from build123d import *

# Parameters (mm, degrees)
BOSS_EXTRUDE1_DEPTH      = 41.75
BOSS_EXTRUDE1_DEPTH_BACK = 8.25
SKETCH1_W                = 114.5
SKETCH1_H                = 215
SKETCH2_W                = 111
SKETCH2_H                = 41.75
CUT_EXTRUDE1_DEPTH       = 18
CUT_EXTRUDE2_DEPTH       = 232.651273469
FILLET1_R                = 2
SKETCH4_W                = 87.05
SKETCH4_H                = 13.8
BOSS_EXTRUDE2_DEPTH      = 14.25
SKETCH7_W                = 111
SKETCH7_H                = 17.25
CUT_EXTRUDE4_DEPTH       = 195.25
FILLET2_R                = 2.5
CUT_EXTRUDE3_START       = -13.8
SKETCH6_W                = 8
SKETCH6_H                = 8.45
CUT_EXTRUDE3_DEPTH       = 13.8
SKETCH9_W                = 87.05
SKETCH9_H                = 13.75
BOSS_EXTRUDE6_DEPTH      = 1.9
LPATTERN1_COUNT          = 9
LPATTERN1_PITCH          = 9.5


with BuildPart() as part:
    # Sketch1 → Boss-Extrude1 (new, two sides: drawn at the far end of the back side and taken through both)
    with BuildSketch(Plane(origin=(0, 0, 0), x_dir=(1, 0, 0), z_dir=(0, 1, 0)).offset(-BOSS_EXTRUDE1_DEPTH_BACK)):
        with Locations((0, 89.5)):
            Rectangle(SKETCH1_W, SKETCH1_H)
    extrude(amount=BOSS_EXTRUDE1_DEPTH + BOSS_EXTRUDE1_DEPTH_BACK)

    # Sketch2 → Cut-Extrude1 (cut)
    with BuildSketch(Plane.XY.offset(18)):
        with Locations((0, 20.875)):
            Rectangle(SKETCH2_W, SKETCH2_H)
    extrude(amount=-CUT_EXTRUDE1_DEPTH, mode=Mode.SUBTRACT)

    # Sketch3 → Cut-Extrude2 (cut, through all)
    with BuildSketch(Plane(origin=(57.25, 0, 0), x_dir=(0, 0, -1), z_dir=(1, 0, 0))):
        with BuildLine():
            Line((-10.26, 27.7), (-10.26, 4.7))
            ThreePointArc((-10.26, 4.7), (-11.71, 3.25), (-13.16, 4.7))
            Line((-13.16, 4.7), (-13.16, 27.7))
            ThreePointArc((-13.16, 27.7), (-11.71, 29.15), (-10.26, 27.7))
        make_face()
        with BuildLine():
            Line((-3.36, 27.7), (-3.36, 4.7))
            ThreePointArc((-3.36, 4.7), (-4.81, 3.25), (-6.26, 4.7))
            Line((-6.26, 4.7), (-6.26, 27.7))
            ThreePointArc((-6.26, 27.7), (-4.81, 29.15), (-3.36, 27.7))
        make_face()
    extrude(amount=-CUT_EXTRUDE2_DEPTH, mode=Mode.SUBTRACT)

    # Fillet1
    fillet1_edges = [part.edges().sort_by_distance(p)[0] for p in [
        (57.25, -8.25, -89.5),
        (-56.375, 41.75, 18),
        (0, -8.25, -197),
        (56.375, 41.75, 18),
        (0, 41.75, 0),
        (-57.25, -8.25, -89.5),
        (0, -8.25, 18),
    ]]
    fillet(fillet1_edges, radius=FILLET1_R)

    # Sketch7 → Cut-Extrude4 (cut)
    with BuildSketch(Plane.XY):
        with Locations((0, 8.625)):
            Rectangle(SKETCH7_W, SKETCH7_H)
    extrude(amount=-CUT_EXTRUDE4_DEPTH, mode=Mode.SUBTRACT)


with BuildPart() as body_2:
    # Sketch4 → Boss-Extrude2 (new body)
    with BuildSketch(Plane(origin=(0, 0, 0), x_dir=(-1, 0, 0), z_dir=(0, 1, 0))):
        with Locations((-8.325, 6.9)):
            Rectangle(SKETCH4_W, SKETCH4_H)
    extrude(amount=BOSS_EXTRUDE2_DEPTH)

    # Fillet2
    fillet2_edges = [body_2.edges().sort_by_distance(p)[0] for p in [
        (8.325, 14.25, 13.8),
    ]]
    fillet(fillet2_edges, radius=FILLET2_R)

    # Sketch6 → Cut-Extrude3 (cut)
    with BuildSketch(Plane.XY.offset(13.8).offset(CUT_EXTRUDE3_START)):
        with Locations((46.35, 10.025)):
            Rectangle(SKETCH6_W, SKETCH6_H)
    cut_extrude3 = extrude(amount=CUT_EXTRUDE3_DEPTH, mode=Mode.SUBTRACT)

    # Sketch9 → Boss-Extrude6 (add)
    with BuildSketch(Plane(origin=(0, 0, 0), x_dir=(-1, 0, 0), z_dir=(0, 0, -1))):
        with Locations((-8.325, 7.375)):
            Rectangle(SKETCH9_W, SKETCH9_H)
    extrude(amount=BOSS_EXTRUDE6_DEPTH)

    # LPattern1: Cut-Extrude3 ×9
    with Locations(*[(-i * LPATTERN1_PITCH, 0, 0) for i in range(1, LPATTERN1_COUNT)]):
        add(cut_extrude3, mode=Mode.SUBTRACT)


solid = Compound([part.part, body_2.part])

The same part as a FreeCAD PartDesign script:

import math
import FreeCAD as App
import Part
import Sketcher


def edges_at(feature, points):
    """Names of the edges that pass closest to the given points."""
    edges = feature.Shape.Edges
    near = lambda p: min(range(len(edges)), key=lambda i: edges[i].distToShape(Part.Vertex(*p))[0])
    return sorted({f"Edge{near(p) + 1}" for p in points})

doc = App.newDocument("Part")
body = doc.addObject("PartDesign::Body", "Body")

sketch1 = doc.addObject("Sketcher::SketchObject", "Sketch")
body.addObject(sketch1)
sketch1.AttachmentSupport = (doc.XZ_Plane, [""])
sketch1.MapMode = "FlatFace"
sketch1.addGeometry([
    Part.LineSegment(App.Vector(-57, -197, 0), App.Vector(-57, 18, 0)),
    Part.LineSegment(App.Vector(-57, 18, 0), App.Vector(57, 18, 0)),
    Part.LineSegment(App.Vector(57, 18, 0), App.Vector(57, -197, 0)),
    Part.LineSegment(App.Vector(57, -197, 0), App.Vector(-57, -197, 0)),
], False)
sketch1.addConstraint([
    Sketcher.Constraint("Coincident", 0, 2, 1, 1),
    Sketcher.Constraint("Coincident", 1, 2, 2, 1),
    Sketcher.Constraint("Coincident", 2, 2, 3, 1),
    Sketcher.Constraint("Coincident", 3, 2, 0, 1),
    Sketcher.Constraint("Vertical", 0),
    Sketcher.Constraint("Horizontal", 1),
    Sketcher.Constraint("Vertical", 2),
    Sketcher.Constraint("Horizontal", 3),
    Sketcher.Constraint("DistanceY", 0, 1, 0, 2, 215.0),
    Sketcher.Constraint("DistanceX", 1, 1, 1, 2, 114.5),
    Sketcher.Constraint("DistanceY", -1, 1, 0, 2, 18.0),
    Sketcher.Constraint("DistanceX", 0, 2, -1, 1, 57.25),
])
pad1 = doc.addObject("PartDesign::Pad", "Pad")
body.addObject(pad1)
pad1.Profile = sketch1
pad1.Type = "TwoLengths"
pad1.Length = 41.75
pad1.Length2 = 8.25
pad1.Reversed = True

sketch2 = doc.addObject("Sketcher::SketchObject", "Sketch001")
body.addObject(sketch2)
sketch2.AttachmentSupport = (doc.XY_Plane, [""])
sketch2.MapMode = "FlatFace"
sketch2.AttachmentOffset = App.Placement(App.Vector(0, 0, 18), App.Rotation())
sketch2.addGeometry([
    Part.LineSegment(App.Vector(-56, 42, 0), App.Vector(-56, 0, 0)),
    Part.LineSegment(App.Vector(-56, 0, 0), App.Vector(56, 0, 0)),
    Part.LineSegment(App.Vector(56, 0, 0), App.Vector(56, 42, 0)),
    Part.LineSegment(App.Vector(56, 42, 0), App.Vector(-56, 42, 0)),
], False)
sketch2.addConstraint([
    Sketcher.Constraint("Coincident", 0, 2, 1, 1),
    Sketcher.Constraint("Coincident", 1, 2, 2, 1),
    Sketcher.Constraint("Coincident", 2, 2, 3, 1),
    Sketcher.Constraint("Coincident", 3, 2, 0, 1),
    Sketcher.Constraint("Vertical", 0),
    Sketcher.Constraint("Horizontal", 1),
    Sketcher.Constraint("Vertical", 2),
    Sketcher.Constraint("Horizontal", 3),
    Sketcher.Constraint("Symmetric", 0, 2, 1, 2, -1, 1),
    Sketcher.Constraint("DistanceX", 1, 1, 1, 2, 111.0),
    Sketcher.Constraint("DistanceY", 0, 2, 0, 1, 41.75),
])
pocket1 = doc.addObject("PartDesign::Pocket", "Pocket")
body.addObject(pocket1)
pocket1.Profile = sketch2
pocket1.Length = 18

sketch3 = doc.addObject("Sketcher::SketchObject", "Sketch002")
body.addObject(sketch3)
sketch3.AttachmentSupport = (doc.YZ_Plane, [""])
sketch3.MapMode = "FlatFace"
sketch3.AttachmentOffset = App.Placement(App.Vector(0, 0, 57.25), App.Rotation())
sketch3.addGeometry([
    Part.LineSegment(App.Vector(4.7, 10.3, 0), App.Vector(27.7, 10.3, 0)),
    Part.ArcOfCircle(Part.Circle(App.Vector(27.7, 11.7, 0), App.Vector(0, 0, 1), 1.4), math.radians(-90), math.radians(90)),
    Part.LineSegment(App.Vector(27.7, 13.2, 0), App.Vector(4.7, 13.2, 0)),
    Part.ArcOfCircle(Part.Circle(App.Vector(4.7, 11.7, 0), App.Vector(0, 0, 1), 1.4), math.radians(90), math.radians(270)),
    Part.LineSegment(App.Vector(4.7, 3.4, 0), App.Vector(27.7, 3.4, 0)),
    Part.ArcOfCircle(Part.Circle(App.Vector(27.7, 4.8, 0), App.Vector(0, 0, 1), 1.4), math.radians(-90), math.radians(90)),
    Part.LineSegment(App.Vector(27.7, 6.3, 0), App.Vector(4.7, 6.3, 0)),
    Part.ArcOfCircle(Part.Circle(App.Vector(4.7, 4.8, 0), App.Vector(0, 0, 1), 1.4), math.radians(90), math.radians(270)),
], False)
sketch3.addConstraint([
    Sketcher.Constraint("Tangent", 0, 2, 1, 1),
    Sketcher.Constraint("Tangent", 1, 2, 2, 1),
    Sketcher.Constraint("Tangent", 2, 2, 3, 1),
    Sketcher.Constraint("Tangent", 3, 2, 0, 1),
    Sketcher.Constraint("Tangent", 4, 2, 5, 1),
    Sketcher.Constraint("Tangent", 5, 2, 6, 1),
    Sketcher.Constraint("Tangent", 6, 2, 7, 1),
    Sketcher.Constraint("Tangent", 7, 2, 4, 1),
    Sketcher.Constraint("Horizontal", 0),
    Sketcher.Constraint("Horizontal", 2),
    Sketcher.Constraint("Horizontal", 4),
    Sketcher.Constraint("Horizontal", 6),
    Sketcher.Constraint("Equal", 3, 5),
    Sketcher.Constraint("Vertical", 1, 3, 5, 3),
    Sketcher.Constraint("Vertical", 3, 3, 7, 3),
    Sketcher.Constraint("DistanceX", 0, 1, 0, 2, 23.0),
    Sketcher.Constraint("Radius", 1, 1.45),
    Sketcher.Constraint("DistanceY", 5, 2, 0, 2, 4.0),
    Sketcher.Constraint("DistanceX", -1, 1, 1, 3, 27.7),
    Sketcher.Constraint("DistanceY", -1, 1, 1, 3, 11.71),
])
pocket2 = doc.addObject("PartDesign::Pocket", "Pocket001")
body.addObject(pocket2)
pocket2.Profile = sketch3
pocket2.Type = "ThroughAll"
doc.recompute()

fillet = doc.addObject("PartDesign::Fillet", "Fillet")
body.addObject(fillet)
fillet.Base = (pocket2, edges_at(pocket2, [
    (57.25, -8.25, -89.5),
    (-56.375, 41.75, 18),
    (0, -8.25, -197),
    (56.375, 41.75, 18),
    (0, 41.75, 0),
    (-57.25, -8.25, -89.5),
    (0, -8.25, 18),
]))
fillet.Radius = 2

sketch4 = doc.addObject("Sketcher::SketchObject", "Sketch003")
body.addObject(sketch4)
sketch4.AttachmentSupport = (doc.XY_Plane, [""])
sketch4.MapMode = "FlatFace"
sketch4.addGeometry([
    Part.LineSegment(App.Vector(-56, 17, 0), App.Vector(-56, 0, 0)),
    Part.LineSegment(App.Vector(-56, 0, 0), App.Vector(56, 0, 0)),
    Part.LineSegment(App.Vector(56, 0, 0), App.Vector(56, 17, 0)),
    Part.LineSegment(App.Vector(56, 17, 0), App.Vector(-56, 17, 0)),
], False)
sketch4.addConstraint([
    Sketcher.Constraint("Coincident", 0, 2, 1, 1),
    Sketcher.Constraint("Coincident", 1, 2, 2, 1),
    Sketcher.Constraint("Coincident", 2, 2, 3, 1),
    Sketcher.Constraint("Coincident", 3, 2, 0, 1),
    Sketcher.Constraint("Vertical", 0),
    Sketcher.Constraint("Horizontal", 1),
    Sketcher.Constraint("Vertical", 2),
    Sketcher.Constraint("Horizontal", 3),
    Sketcher.Constraint("Symmetric", 0, 2, 1, 2, -1, 1),
    Sketcher.Constraint("DistanceX", 1, 1, 1, 2, 111.0),
    Sketcher.Constraint("DistanceY", 0, 2, 0, 1, 17.25),
])
pocket3 = doc.addObject("PartDesign::Pocket", "Pocket002")
body.addObject(pocket3)
pocket3.Profile = sketch4
pocket3.Length = 195.25
body2 = doc.addObject("PartDesign::Body", "Body001")

sketch5 = doc.addObject("Sketcher::SketchObject", "Sketch004")
body2.addObject(sketch5)
sketch5.AttachmentSupport = (doc.getObject("XZ_Plane001"), [""])
sketch5.MapMode = "FlatFace"
sketch5.addGeometry([
    Part.LineSegment(App.Vector(52, 14, 0), App.Vector(52, 0, 0)),
    Part.LineSegment(App.Vector(52, 0, 0), App.Vector(-35, 0, 0)),
    Part.LineSegment(App.Vector(-35, 0, 0), App.Vector(-35, 14, 0)),
    Part.LineSegment(App.Vector(-35, 14, 0), App.Vector(52, 14, 0)),
], False)
sketch5.addConstraint([
    Sketcher.Constraint("Coincident", 0, 2, 1, 1),
    Sketcher.Constraint("Coincident", 1, 2, 2, 1),
    Sketcher.Constraint("Coincident", 2, 2, 3, 1),
    Sketcher.Constraint("Coincident", 3, 2, 0, 1),
    Sketcher.Constraint("Vertical", 0),
    Sketcher.Constraint("Horizontal", 1),
    Sketcher.Constraint("Vertical", 2),
    Sketcher.Constraint("Horizontal", 3),
    Sketcher.Constraint("PointOnObject", 0, 2, -1),
    Sketcher.Constraint("DistanceY", 0, 2, 0, 1, 13.8),
    Sketcher.Constraint("DistanceX", 1, 2, 1, 1, 87.05),
    Sketcher.Constraint("DistanceX", 1, 2, -1, 1, 35.2),
])
pad2 = doc.addObject("PartDesign::Pad", "Pad001")
body2.addObject(pad2)
pad2.Profile = sketch5
pad2.Length = 14.25
pad2.Reversed = True
doc.recompute()

fillet2 = doc.addObject("PartDesign::Fillet", "Fillet001")
body2.addObject(fillet2)
fillet2.Base = (pad2, edges_at(pad2, [(8.325, 14.25, 13.8)]))
fillet2.Radius = 2.5

sketch6 = doc.addObject("Sketcher::SketchObject", "Sketch005")
body2.addObject(sketch6)
sketch6.AttachmentSupport = (doc.getObject("XY_Plane001"), [""])
sketch6.MapMode = "FlatFace"
sketch6.addGeometry([
    Part.LineSegment(App.Vector(42, 14, 0), App.Vector(42, 6, 0)),
    Part.LineSegment(App.Vector(42, 6, 0), App.Vector(50, 6, 0)),
    Part.LineSegment(App.Vector(50, 6, 0), App.Vector(50, 14, 0)),
    Part.LineSegment(App.Vector(50, 14, 0), App.Vector(42, 14, 0)),
], False)
sketch6.addConstraint([
    Sketcher.Constraint("Coincident", 0, 2, 1, 1),
    Sketcher.Constraint("Coincident", 1, 2, 2, 1),
    Sketcher.Constraint("Coincident", 2, 2, 3, 1),
    Sketcher.Constraint("Coincident", 3, 2, 0, 1),
    Sketcher.Constraint("Vertical", 0),
    Sketcher.Constraint("Horizontal", 1),
    Sketcher.Constraint("Vertical", 2),
    Sketcher.Constraint("Horizontal", 3),
    Sketcher.Constraint("DistanceX", 1, 1, 1, 2, 8.0),
    Sketcher.Constraint("DistanceY", 0, 2, 0, 1, 8.45),
    Sketcher.Constraint("DistanceY", -1, 1, 0, 2, 5.8),
    Sketcher.Constraint("DistanceX", -1, 1, 0, 2, 42.35),
])
pocket4 = doc.addObject("PartDesign::Pocket", "Pocket003")
body2.addObject(pocket4)
pocket4.Profile = sketch6
pocket4.Length = 13.8
pocket4.Reversed = True

sketch7 = doc.addObject("Sketcher::SketchObject", "Sketch006")
body2.addObject(sketch7)
sketch7.AttachmentSupport = (doc.getObject("XY_Plane001"), [""])
sketch7.MapMode = "FlatFace"
sketch7.addGeometry([
    Part.LineSegment(App.Vector(52, 14, 0), App.Vector(52, 0, 0)),
    Part.LineSegment(App.Vector(52, 0, 0), App.Vector(-35, 0, 0)),
    Part.LineSegment(App.Vector(-35, 0, 0), App.Vector(-35, 14, 0)),
    Part.LineSegment(App.Vector(-35, 14, 0), App.Vector(52, 14, 0)),
], False)
sketch7.addConstraint([
    Sketcher.Constraint("Coincident", 0, 2, 1, 1),
    Sketcher.Constraint("Coincident", 1, 2, 2, 1),
    Sketcher.Constraint("Coincident", 2, 2, 3, 1),
    Sketcher.Constraint("Coincident", 3, 2, 0, 1),
    Sketcher.Constraint("Vertical", 0),
    Sketcher.Constraint("Horizontal", 1),
    Sketcher.Constraint("Vertical", 2),
    Sketcher.Constraint("Horizontal", 3),
    Sketcher.Constraint("DistanceX", 1, 2, 1, 1, 87.05),
    Sketcher.Constraint("DistanceY", 0, 2, 0, 1, 13.75),
    Sketcher.Constraint("DistanceY", -1, 1, 0, 2, 0.5),
    Sketcher.Constraint("DistanceX", 1, 2, -1, 1, 35.2),
])
pad3 = doc.addObject("PartDesign::Pad", "Pad002")
body2.addObject(pad3)
pad3.Profile = sketch7
pad3.Length = 1.9
pad3.Reversed = True
doc.recompute()

linearpattern = doc.addObject("PartDesign::LinearPattern", "LinearPattern")
body2.addObject(linearpattern)
linearpattern.Originals = [pocket4]
linearpattern.Direction = (doc.getObject("X_Axis001"), [""])
linearpattern.Mode = "offset"
linearpattern.Offset = 9.5
linearpattern.Occurrences = 9
linearpattern.Reversed = True
body2.Tip = linearpattern

doc.recompute()
